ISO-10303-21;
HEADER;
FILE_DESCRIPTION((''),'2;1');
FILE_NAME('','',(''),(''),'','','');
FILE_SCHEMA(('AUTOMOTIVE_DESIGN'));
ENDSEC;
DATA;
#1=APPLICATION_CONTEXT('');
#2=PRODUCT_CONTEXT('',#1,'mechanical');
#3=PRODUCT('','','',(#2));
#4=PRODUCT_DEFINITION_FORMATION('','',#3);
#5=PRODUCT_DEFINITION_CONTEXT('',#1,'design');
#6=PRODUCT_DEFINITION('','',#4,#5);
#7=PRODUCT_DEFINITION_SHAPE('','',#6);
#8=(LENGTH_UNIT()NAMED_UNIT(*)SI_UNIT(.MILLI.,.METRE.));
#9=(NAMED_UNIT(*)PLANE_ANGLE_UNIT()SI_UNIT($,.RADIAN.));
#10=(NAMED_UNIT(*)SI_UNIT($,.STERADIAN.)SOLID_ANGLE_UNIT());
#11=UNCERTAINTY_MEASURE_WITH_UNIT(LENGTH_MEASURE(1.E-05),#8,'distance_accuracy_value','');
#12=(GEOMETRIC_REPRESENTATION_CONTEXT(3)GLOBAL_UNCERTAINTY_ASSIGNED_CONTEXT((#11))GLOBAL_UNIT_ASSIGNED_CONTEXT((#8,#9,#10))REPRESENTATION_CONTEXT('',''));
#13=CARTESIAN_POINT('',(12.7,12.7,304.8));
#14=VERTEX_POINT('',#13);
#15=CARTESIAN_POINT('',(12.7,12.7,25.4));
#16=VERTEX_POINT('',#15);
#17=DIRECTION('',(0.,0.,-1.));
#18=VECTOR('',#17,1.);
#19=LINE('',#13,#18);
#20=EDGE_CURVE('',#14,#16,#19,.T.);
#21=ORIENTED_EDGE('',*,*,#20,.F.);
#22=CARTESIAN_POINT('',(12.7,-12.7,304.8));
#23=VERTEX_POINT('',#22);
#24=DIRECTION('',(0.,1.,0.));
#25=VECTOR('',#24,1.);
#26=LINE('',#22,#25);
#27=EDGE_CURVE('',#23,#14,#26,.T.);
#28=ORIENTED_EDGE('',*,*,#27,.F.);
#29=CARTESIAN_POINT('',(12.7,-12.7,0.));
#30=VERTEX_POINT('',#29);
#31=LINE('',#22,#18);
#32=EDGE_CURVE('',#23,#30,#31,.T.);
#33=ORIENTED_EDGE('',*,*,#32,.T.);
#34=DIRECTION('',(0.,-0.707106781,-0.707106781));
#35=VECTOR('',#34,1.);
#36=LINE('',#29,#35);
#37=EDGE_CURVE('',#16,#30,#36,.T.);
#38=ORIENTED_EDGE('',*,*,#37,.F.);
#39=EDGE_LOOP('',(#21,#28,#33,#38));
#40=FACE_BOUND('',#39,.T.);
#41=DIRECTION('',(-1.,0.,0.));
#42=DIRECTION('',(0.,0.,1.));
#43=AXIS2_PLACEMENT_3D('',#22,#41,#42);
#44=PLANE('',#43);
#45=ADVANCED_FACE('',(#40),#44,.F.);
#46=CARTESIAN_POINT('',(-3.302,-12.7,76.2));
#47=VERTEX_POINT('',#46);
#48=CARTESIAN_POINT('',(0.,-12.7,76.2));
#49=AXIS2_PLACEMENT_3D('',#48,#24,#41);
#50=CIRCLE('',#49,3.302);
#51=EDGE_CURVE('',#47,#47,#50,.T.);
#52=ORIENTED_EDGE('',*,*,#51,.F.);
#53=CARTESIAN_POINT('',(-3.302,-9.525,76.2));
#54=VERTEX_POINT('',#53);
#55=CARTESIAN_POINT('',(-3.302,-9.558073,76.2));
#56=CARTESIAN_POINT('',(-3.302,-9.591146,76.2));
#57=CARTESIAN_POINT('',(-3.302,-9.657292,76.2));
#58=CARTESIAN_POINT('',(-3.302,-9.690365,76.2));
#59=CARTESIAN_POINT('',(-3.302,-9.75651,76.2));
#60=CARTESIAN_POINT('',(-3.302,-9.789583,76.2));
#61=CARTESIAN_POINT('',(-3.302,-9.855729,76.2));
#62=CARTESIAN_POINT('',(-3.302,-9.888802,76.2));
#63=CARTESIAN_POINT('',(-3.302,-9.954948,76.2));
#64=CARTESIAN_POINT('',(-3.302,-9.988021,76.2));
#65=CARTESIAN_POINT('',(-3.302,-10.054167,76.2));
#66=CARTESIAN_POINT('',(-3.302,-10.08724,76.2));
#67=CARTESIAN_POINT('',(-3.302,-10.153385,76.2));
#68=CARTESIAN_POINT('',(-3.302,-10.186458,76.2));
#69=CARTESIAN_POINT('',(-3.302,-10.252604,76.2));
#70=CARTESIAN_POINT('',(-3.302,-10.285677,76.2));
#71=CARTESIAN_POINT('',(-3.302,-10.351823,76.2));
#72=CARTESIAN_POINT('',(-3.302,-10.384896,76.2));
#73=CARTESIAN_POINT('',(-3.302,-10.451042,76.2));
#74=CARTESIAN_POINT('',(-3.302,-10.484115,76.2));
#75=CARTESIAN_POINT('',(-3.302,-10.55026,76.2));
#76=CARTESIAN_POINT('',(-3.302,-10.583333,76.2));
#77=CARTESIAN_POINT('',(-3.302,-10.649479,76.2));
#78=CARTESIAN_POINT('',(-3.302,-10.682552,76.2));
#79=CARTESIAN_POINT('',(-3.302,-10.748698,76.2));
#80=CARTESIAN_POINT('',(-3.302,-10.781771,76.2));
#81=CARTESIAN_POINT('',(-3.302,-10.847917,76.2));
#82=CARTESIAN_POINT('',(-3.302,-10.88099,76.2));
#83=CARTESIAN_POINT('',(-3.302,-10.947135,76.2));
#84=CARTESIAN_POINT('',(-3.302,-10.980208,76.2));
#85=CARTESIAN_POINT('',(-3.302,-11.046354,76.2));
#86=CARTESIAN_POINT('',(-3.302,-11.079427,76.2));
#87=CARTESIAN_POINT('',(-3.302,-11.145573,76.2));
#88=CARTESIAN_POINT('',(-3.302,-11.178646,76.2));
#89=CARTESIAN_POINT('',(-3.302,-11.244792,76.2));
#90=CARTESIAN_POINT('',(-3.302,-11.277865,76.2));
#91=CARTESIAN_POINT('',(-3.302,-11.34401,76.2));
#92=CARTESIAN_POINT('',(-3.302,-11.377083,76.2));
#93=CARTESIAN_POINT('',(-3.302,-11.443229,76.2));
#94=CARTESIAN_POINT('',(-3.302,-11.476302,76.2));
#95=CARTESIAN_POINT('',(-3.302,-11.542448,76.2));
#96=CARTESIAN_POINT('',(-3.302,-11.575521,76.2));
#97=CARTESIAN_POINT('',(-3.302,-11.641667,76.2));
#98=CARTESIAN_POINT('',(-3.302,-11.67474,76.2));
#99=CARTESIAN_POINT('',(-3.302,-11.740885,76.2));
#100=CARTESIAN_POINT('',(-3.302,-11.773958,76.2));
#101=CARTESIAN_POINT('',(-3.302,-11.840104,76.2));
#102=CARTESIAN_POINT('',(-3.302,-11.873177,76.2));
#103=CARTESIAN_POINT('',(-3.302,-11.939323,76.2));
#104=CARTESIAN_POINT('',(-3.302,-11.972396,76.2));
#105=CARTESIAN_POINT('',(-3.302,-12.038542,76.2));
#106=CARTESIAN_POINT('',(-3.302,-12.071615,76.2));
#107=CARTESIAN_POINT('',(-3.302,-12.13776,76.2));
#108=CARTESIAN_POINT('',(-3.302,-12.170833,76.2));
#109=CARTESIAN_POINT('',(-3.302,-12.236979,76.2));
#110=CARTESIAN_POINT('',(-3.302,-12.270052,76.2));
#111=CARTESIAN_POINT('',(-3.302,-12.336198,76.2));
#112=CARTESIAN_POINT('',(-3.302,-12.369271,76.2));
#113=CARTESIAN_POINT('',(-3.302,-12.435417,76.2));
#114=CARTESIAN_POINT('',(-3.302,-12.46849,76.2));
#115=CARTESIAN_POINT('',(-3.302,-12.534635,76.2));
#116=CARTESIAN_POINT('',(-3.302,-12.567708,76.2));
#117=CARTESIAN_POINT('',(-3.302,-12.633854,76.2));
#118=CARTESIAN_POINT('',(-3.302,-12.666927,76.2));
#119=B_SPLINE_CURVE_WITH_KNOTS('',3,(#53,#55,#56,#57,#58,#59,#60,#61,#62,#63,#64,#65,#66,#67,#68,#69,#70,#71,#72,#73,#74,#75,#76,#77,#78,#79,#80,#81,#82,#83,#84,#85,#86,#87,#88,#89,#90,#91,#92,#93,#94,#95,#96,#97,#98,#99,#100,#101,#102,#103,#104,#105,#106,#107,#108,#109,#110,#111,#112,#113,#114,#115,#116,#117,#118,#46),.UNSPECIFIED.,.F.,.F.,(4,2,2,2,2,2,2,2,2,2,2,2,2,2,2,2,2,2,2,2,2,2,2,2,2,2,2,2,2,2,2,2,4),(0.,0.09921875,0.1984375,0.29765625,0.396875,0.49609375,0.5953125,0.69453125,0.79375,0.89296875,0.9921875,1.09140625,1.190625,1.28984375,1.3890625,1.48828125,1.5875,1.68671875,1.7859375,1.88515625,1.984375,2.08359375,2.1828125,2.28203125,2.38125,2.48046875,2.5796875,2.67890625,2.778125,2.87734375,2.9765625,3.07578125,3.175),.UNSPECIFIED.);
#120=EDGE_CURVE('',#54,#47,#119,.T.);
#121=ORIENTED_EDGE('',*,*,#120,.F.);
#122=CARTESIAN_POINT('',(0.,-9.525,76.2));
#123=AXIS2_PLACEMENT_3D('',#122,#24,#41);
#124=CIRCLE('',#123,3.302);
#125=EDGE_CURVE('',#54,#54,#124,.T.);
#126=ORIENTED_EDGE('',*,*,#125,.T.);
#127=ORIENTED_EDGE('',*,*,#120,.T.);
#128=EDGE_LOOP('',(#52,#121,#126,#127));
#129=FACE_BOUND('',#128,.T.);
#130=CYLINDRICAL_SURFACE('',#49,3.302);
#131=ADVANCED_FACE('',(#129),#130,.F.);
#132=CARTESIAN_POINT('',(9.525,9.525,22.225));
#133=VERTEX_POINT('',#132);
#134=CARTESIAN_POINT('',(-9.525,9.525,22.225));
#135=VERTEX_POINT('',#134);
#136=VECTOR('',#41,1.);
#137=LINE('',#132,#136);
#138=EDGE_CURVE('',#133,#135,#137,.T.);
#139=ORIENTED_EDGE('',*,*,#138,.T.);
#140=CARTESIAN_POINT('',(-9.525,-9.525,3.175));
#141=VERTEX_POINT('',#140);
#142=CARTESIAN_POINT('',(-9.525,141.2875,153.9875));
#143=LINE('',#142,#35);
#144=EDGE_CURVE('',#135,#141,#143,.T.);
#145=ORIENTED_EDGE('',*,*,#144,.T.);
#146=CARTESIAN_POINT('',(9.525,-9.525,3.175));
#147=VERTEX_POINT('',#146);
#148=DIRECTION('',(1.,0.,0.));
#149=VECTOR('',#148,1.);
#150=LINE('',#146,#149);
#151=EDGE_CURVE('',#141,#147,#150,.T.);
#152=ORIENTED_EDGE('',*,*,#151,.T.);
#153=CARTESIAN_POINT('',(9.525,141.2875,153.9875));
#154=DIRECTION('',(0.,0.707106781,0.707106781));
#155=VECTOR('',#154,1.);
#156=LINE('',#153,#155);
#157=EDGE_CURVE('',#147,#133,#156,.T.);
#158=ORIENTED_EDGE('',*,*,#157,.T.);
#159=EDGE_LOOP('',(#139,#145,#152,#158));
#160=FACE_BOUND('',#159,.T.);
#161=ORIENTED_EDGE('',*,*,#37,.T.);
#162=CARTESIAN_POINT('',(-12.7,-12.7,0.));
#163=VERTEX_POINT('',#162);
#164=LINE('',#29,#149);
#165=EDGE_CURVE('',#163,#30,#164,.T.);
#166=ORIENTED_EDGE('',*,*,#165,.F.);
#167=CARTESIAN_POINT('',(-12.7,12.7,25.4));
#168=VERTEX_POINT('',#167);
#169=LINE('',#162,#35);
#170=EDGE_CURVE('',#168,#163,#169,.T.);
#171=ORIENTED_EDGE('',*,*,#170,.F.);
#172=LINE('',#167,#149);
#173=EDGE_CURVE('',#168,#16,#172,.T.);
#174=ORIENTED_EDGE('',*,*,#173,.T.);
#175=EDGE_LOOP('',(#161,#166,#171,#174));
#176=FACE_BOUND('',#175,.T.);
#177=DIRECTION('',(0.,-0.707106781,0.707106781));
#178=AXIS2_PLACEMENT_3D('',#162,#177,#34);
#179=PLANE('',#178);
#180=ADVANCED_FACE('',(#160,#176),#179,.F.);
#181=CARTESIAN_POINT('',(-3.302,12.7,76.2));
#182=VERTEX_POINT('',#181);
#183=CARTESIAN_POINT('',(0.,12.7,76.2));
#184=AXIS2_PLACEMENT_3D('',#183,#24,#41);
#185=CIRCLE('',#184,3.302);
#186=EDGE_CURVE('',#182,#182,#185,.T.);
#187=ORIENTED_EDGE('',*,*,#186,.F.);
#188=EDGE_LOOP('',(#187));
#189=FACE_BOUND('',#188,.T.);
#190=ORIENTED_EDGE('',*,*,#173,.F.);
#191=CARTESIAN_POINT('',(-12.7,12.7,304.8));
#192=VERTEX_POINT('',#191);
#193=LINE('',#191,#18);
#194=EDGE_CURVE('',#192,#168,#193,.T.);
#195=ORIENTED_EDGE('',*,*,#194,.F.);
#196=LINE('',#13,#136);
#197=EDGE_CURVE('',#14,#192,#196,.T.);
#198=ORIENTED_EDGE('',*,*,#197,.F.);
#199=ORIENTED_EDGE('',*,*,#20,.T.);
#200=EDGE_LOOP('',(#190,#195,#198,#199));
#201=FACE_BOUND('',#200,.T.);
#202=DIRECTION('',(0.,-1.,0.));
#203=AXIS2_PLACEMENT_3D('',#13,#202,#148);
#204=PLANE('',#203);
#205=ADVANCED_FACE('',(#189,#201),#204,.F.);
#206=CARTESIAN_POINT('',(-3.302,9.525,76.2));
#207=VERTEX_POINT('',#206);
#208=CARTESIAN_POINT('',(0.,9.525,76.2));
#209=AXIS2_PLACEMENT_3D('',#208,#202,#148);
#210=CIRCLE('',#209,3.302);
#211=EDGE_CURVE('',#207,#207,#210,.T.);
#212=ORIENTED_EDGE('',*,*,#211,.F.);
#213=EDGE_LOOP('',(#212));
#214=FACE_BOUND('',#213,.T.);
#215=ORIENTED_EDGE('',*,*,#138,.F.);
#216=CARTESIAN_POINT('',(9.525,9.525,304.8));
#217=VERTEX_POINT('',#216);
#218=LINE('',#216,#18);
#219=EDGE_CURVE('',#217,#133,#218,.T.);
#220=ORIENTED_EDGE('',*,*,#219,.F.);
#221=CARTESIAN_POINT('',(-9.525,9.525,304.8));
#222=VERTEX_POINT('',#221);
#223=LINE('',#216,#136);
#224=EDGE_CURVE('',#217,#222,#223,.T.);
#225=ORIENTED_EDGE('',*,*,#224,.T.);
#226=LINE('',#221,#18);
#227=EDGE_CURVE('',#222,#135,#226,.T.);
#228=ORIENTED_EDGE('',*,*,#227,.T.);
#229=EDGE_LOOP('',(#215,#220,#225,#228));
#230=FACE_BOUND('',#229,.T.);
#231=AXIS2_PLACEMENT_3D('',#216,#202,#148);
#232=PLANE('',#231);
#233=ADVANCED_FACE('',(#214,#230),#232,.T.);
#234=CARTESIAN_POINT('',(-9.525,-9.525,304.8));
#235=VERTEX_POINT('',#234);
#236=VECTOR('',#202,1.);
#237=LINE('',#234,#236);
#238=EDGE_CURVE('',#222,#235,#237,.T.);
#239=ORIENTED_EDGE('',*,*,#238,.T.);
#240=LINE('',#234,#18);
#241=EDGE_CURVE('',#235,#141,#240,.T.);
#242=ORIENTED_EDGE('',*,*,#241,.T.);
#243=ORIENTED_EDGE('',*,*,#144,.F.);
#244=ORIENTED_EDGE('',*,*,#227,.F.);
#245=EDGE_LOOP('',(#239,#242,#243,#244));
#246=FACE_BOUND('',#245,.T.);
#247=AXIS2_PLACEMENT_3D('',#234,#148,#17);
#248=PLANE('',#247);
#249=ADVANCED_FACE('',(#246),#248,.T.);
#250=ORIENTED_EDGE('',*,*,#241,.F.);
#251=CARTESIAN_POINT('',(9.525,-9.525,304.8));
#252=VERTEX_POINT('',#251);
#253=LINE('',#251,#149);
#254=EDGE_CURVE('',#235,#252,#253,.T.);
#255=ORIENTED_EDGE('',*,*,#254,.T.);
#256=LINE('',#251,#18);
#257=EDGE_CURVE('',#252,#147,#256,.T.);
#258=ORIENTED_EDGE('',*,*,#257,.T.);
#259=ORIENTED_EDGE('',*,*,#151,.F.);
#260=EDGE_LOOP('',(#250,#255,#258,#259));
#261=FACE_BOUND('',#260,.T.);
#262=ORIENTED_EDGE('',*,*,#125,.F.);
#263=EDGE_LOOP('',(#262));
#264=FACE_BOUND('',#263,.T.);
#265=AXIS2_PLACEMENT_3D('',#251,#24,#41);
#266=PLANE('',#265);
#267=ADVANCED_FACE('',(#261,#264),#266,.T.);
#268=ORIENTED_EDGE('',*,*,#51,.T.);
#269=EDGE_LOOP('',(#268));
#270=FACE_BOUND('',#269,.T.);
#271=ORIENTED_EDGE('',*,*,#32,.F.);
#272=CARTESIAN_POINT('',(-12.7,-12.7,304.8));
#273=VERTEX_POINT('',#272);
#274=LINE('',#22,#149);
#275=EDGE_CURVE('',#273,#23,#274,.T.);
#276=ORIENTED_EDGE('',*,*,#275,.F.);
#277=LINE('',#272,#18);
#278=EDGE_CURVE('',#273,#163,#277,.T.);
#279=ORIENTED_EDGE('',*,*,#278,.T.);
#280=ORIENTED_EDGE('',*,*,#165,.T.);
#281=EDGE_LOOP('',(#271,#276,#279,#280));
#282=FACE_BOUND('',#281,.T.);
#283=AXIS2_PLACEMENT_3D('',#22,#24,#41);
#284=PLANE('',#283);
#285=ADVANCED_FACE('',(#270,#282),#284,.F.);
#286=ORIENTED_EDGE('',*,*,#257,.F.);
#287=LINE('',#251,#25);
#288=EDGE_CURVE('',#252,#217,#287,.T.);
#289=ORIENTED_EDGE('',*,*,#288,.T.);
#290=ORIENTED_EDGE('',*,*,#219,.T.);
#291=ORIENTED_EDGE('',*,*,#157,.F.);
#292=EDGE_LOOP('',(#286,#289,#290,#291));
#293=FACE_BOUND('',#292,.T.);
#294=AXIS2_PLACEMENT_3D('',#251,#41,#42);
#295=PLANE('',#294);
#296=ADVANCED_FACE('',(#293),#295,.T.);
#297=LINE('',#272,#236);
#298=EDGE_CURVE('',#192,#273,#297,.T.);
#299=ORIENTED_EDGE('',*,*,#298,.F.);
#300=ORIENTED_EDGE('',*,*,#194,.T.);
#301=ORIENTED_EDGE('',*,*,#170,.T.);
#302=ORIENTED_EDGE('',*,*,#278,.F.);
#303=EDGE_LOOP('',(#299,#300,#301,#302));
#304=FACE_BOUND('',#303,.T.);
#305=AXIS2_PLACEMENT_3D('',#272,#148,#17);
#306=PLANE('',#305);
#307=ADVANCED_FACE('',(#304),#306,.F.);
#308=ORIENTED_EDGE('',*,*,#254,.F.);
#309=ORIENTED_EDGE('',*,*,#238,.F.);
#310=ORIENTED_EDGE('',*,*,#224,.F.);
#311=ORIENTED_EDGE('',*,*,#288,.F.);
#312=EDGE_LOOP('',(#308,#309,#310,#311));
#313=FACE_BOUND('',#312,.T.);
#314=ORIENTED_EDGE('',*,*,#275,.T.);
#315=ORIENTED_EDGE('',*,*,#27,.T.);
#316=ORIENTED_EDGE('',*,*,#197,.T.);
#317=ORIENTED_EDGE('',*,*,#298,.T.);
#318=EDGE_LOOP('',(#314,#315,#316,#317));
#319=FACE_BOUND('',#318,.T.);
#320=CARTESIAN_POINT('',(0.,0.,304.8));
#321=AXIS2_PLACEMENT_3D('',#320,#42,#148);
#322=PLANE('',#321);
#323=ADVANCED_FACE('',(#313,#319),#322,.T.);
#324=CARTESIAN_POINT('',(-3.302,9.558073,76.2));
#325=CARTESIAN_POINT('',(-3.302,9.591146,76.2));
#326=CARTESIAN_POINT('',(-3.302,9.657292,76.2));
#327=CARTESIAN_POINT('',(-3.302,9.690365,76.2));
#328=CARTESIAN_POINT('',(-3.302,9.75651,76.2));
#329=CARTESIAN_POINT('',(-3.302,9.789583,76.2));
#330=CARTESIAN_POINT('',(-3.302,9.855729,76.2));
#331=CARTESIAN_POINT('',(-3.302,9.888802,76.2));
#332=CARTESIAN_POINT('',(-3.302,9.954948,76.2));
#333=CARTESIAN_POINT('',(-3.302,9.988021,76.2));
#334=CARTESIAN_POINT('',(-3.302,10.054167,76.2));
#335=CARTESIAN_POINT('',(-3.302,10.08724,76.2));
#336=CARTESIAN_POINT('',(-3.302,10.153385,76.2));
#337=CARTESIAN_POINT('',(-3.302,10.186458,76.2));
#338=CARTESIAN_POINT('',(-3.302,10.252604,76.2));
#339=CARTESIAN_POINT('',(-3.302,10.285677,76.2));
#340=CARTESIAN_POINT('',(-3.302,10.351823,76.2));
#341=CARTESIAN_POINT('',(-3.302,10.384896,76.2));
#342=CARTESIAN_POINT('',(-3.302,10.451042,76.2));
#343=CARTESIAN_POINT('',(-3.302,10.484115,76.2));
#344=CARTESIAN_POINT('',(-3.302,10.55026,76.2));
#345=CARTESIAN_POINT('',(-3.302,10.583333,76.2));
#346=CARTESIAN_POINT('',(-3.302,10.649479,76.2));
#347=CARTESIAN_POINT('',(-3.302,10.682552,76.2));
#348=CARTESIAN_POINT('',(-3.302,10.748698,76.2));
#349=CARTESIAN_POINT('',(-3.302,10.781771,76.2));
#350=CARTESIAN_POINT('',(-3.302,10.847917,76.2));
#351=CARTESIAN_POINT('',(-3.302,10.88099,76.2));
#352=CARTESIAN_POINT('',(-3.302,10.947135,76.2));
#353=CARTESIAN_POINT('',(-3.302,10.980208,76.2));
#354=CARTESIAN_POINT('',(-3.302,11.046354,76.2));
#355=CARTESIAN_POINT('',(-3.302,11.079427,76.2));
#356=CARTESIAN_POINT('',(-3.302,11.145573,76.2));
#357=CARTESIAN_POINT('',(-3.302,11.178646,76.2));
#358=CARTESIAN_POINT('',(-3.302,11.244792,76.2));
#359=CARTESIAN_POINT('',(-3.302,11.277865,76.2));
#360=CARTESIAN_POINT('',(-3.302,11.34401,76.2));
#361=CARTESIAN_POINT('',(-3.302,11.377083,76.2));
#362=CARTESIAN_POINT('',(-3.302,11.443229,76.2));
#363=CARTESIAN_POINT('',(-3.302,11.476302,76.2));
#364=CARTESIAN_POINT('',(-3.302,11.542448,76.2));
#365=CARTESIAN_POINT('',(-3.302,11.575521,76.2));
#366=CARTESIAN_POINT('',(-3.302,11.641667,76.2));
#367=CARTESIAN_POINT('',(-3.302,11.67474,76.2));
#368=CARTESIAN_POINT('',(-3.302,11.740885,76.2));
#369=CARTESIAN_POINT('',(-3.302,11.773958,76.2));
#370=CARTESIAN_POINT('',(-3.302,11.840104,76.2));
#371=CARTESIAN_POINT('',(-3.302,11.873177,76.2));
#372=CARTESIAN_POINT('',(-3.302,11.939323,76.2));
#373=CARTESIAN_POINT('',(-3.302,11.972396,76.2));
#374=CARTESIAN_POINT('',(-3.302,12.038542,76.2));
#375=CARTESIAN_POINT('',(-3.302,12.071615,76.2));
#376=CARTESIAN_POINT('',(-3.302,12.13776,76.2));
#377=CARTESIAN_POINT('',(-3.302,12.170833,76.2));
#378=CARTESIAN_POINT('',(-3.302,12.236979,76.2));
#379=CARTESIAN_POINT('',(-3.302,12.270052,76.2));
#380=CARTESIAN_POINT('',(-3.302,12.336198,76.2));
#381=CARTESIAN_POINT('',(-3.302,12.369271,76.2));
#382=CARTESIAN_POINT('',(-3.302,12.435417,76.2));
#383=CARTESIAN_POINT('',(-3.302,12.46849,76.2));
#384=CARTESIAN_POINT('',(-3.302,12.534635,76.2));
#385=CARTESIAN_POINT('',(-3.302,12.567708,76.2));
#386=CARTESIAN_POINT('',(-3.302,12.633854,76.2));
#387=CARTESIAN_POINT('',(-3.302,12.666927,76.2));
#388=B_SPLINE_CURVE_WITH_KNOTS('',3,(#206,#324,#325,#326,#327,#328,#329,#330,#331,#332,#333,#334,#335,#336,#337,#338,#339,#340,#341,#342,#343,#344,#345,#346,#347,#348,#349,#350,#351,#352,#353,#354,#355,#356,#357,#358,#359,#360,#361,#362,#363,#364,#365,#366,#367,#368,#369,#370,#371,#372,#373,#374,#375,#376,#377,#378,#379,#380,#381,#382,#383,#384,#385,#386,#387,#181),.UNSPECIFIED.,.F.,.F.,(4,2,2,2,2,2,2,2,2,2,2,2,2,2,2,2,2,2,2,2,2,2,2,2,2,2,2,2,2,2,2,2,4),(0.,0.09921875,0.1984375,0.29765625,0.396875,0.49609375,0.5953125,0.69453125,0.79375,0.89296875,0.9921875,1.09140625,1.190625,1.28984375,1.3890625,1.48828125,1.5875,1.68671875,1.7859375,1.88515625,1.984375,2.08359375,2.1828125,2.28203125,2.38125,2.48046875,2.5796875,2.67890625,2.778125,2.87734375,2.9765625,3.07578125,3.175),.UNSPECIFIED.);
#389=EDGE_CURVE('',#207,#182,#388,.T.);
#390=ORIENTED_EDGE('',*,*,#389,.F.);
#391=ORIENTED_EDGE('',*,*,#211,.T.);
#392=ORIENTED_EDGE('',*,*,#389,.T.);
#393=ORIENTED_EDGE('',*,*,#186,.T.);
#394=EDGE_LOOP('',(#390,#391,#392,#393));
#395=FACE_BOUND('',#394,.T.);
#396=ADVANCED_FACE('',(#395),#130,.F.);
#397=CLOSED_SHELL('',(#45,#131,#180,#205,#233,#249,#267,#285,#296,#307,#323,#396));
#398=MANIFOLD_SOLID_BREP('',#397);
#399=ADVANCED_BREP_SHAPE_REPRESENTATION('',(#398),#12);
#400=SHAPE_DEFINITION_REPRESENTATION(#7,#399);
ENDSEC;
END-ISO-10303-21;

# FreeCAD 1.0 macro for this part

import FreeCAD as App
import Part
import Sketcher
Q = App.Units.Quantity


def add_polygon(sketch, points):
    """Adds a closed chain of lines whose ends are joined by coincident constraints."""
    first, n = sketch.GeometryCount, len(points)
    for a, b in zip(points, points[1:] + points[:1]):
        sketch.addGeometry(Part.LineSegment(App.Vector(*a, 0), App.Vector(*b, 0)), False)
    for i in range(n):
        sketch.addConstraint(Sketcher.Constraint("Coincident", first + i, 2, first + (i + 1) % n, 1))

doc = App.newDocument("Part")
body = doc.addObject("PartDesign::Body", "Body")

sketch1 = body.newObject("Sketcher::SketchObject", "Sketch")
sketch1.AttachmentSupport = (doc.getObject("XY_Plane"), [""])
sketch1.MapMode = "FlatFace"
add_polygon(sketch1, [(-13, 13), (-13, -13), (13, -13), (13, 13)])
add_polygon(sketch1, [(10, -10), (-10, -10), (-10, 10), (10, 10)])
sketch1.addConstraint([
    Sketcher.Constraint("Vertical", 0),
    Sketcher.Constraint("Horizontal", 1),
    Sketcher.Constraint("Vertical", 2),
    Sketcher.Constraint("Horizontal", 3),
    Sketcher.Constraint("Horizontal", 4),
    Sketcher.Constraint("Vertical", 5),
    Sketcher.Constraint("Horizontal", 6),
    Sketcher.Constraint("Vertical", 7),
    Sketcher.Constraint("Symmetric", 0, 2, 2, 2, -1, 1),
    Sketcher.Constraint("Symmetric", 4, 2, 6, 2, -1, 1),
    Sketcher.Constraint("Equal", 3, 0),
    Sketcher.Constraint("Equal", 6, 5),
    Sketcher.Constraint("DistanceX", 1, 1, 1, 2, Q("1 in")),
    Sketcher.Constraint("DistanceX", 4, 2, 4, 1, Q("0.75 in")),
])
pad1 = body.newObject("PartDesign::Pad", "Pad")
pad1.Profile = sketch1
pad1.Length = Q("12 in")

sketch2 = body.newObject("Sketcher::SketchObject", "Sketch001")
sketch2.AttachmentSupport = (doc.getObject("YZ_Plane"), [""])
sketch2.MapMode = "FlatFace"
sketch2.AttachmentOffset = App.Placement(App.Vector(0, 0, 0.5 * 25.4), App.Rotation())
add_polygon(sketch2, [(-13, 0), (13, 0), (13, 25)])
sketch2.addConstraint([
    Sketcher.Constraint("Horizontal", 0),
    Sketcher.Constraint("Vertical", 1),
    Sketcher.Constraint("Symmetric", 0, 2, 2, 2, -1, 1),
    Sketcher.Constraint("Equal", 0, 1),
    Sketcher.Constraint("DistanceX", 0, 1, 0, 2, Q("1 in")),
])
pocket1 = body.newObject("PartDesign::Pocket", "Pocket")
pocket1.Profile = sketch2
pocket1.Type = "ThroughAll"

sketch3 = body.newObject("Sketcher::SketchObject", "Sketch002")
sketch3.AttachmentSupport = (doc.getObject("XZ_Plane"), [""])
sketch3.MapMode = "FlatFace"
sketch3.AttachmentOffset = App.Placement(App.Vector(0, 0, -0.5 * 25.4), App.Rotation())
sketch3.addGeometry(Part.Circle(App.Vector(0, 76.2, 0), App.Vector(0, 0, 1), 3.3), False)
sketch3.addConstraint([
    Sketcher.Constraint("PointOnObject", 0, 3, -2),
    Sketcher.Constraint("Diameter", 0, Q("0.26 in")),
    Sketcher.Constraint("DistanceY", -1, 1, 0, 3, Q("3 in")),
])
pocket2 = body.newObject("PartDesign::Pocket", "Pocket001")
pocket2.Profile = sketch3
pocket2.Type = "ThroughAll"
pocket2.Reversed = True

doc.recompute()
